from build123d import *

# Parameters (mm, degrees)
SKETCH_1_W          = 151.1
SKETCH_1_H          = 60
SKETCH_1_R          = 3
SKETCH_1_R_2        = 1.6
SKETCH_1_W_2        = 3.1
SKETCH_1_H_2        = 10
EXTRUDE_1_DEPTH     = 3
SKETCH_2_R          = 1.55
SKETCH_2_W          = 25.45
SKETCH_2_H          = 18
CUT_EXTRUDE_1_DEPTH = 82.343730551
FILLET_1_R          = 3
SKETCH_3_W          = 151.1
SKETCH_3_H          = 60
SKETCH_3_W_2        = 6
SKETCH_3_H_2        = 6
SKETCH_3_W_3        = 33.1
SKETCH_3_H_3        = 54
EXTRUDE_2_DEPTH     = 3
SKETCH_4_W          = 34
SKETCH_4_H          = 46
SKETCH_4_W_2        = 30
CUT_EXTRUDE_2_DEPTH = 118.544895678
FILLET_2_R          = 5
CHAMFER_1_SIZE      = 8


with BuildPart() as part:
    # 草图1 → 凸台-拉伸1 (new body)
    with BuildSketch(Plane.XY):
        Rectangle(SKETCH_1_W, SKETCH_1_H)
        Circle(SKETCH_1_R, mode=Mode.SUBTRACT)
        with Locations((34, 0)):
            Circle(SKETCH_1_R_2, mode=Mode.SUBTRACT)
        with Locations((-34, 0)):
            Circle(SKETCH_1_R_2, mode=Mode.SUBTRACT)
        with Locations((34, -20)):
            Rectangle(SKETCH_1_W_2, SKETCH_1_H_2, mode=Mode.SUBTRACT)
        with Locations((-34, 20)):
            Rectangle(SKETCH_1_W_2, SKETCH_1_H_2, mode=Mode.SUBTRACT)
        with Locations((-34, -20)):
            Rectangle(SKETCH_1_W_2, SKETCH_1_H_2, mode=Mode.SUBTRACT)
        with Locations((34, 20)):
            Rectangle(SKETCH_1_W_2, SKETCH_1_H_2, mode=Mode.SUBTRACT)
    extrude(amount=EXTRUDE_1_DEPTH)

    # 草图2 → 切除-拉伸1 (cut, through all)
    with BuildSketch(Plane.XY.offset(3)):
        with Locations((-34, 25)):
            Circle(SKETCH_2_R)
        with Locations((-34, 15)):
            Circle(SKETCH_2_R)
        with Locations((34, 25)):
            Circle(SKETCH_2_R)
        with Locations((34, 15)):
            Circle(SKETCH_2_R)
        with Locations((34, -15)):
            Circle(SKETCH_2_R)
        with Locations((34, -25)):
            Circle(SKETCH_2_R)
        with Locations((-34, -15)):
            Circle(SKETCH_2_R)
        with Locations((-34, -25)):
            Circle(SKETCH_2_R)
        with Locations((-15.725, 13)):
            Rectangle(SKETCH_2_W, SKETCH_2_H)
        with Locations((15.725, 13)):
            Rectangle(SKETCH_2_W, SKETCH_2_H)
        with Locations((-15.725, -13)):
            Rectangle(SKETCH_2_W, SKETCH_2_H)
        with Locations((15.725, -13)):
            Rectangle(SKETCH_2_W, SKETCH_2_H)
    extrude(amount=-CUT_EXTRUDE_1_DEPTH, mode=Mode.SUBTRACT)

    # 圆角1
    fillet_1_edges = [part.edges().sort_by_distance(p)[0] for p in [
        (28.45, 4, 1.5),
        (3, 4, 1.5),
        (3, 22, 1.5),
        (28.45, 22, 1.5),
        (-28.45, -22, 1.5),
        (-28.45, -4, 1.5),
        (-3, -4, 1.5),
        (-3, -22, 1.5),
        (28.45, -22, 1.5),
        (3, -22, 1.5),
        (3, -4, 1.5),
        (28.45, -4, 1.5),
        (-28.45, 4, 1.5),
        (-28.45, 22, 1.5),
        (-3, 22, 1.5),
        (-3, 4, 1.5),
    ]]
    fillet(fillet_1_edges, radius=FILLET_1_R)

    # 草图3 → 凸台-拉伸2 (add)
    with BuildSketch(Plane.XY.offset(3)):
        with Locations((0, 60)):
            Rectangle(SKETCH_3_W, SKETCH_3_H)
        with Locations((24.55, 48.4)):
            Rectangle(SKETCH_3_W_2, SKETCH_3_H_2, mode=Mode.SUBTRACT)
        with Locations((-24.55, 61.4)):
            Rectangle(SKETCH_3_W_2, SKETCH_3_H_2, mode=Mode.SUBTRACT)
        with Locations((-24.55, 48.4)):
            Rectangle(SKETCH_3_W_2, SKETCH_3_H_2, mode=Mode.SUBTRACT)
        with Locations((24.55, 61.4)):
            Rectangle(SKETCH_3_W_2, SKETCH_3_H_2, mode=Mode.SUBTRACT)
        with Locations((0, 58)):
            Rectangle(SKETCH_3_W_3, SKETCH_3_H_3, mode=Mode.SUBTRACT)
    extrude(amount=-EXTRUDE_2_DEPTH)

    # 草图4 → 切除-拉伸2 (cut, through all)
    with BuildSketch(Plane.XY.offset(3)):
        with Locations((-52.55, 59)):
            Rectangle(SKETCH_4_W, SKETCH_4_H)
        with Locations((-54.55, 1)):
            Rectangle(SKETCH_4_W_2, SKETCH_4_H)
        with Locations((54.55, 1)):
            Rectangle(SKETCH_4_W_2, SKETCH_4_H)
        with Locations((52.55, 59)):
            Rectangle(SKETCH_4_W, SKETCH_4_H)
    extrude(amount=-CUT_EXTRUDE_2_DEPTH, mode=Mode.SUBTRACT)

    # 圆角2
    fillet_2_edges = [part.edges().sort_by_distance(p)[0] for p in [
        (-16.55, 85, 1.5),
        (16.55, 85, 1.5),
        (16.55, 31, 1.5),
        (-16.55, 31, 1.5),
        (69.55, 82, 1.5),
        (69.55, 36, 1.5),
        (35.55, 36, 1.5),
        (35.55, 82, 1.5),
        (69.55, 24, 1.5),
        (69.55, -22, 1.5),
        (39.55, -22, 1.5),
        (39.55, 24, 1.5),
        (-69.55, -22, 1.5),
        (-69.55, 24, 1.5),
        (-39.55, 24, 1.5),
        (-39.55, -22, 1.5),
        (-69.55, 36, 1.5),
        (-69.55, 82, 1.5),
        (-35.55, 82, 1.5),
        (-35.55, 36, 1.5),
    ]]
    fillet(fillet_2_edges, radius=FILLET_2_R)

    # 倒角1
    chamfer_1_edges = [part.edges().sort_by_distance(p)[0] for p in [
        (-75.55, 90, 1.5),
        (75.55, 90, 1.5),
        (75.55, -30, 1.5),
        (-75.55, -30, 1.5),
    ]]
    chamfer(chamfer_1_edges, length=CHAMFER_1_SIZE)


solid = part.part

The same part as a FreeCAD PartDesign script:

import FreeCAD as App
import Part
import Sketcher


def edges_at(feature, points):
    """Names of the edges that pass closest to the given points."""
    edges = feature.Shape.Edges
    near = lambda p: min(range(len(edges)), key=lambda i: edges[i].distToShape(Part.Vertex(*p))[0])
    return sorted({f"Edge{near(p) + 1}" for p in points})


def add_polygon(sketch, points):
    """Adds a closed chain of lines whose ends are joined by coincident constraints."""
    first, n = sketch.GeometryCount, len(points)
    for a, b in zip(points, points[1:] + points[:1]):
        sketch.addGeometry(Part.LineSegment(App.Vector(*a, 0), App.Vector(*b, 0)), False)
    for i in range(n):
        sketch.addConstraint(Sketcher.Constraint("Coincident", first + i, 2, first + (i + 1) % n, 1))

doc = App.newDocument("Part")
params = doc.addObject("Spreadsheet::Sheet", "Params")
for row, (alias, value) in enumerate([
    ("sketch1_diameter", "6 mm"),
    ("sketch1_diameter2", "3.2 mm"),
    ("sketch1_height", "60 mm"),
    ("sketch1_height2", "10 mm"),
    ("sketch1_width", "151.1 mm"),
    ("pad1_length", "3 mm"),
    ("sketch2_diameter", "3.1 mm"),
    ("sketch2_height", "18 mm"),
    ("sketch2_width", "25.45 mm"),
    ("fillet_radius", "3 mm"),
    ("sketch3_width", "6 mm"),
    ("sketch3_height", "60 mm"),
    ("sketch3_height2", "54 mm"),
    ("sketch3_width2", "151.1 mm"),
    ("sketch3_width3", "33.1 mm"),
    ("pad2_length", "3 mm"),
    ("sketch4_width", "34 mm"),
    ("sketch4_width2", "30 mm"),
    ("sketch4_height", "46 mm"),
    ("fillet2_radius", "5 mm"),
    ("chamfer_size", "8 mm"),
], start=1):
    params.set(f"A{row}", alias)
    params.set(f"B{row}", "=" + value)
    params.setAlias(f"B{row}", alias)

body = doc.addObject("PartDesign::Body", "Body")

# Sketch on XY plane
sketch1 = doc.addObject("Sketcher::SketchObject", "Sketch")
body.addObject(sketch1)
sketch1.AttachmentSupport = (doc.XY_Plane, [""])
sketch1.MapMode = "FlatFace"
add_polygon(sketch1, [(-75.5, 30), (-75.5, -30), (75.5, -30), (75.5, 30)])  # lines 0-3
add_polygon(sketch1, [(-32.5, -25), (-35.5, -25), (-35.5, -15), (-32.5, -15)])  # lines 4-7
add_polygon(sketch1, [(35.5, -25), (32.5, -25), (32.5, -15), (35.5, -15)])  # lines 8-11
sketch1.addGeometry(Part.Circle(App.Vector(-34, 0, 0), App.Vector(0, 0, 1), 1.6), False)  # 12
add_polygon(sketch1, [(-32.5, 15), (-35.5, 15), (-35.5, 25), (-32.5, 25)])  # lines 13-16
sketch1.addGeometry(Part.Circle(App.Vector(0, 0, 0), App.Vector(0, 0, 1), 3), False)  # 17
sketch1.addGeometry(Part.Circle(App.Vector(34, 0, 0), App.Vector(0, 0, 1), 1.6), False)  # 18
add_polygon(sketch1, [(35.5, 15), (32.5, 15), (32.5, 25), (35.5, 25)])  # lines 19-22
sketch1.addConstraint([
    Sketcher.Constraint("Vertical", 0),
    Sketcher.Constraint("Horizontal", 1),
    Sketcher.Constraint("Vertical", 2),
    Sketcher.Constraint("Horizontal", 3),
    Sketcher.Constraint("Horizontal", 4),
    Sketcher.Constraint("Vertical", 5),
    Sketcher.Constraint("Horizontal", 6),
    Sketcher.Constraint("Vertical", 7),
    Sketcher.Constraint("Horizontal", 8),
    Sketcher.Constraint("Vertical", 9),
    Sketcher.Constraint("Horizontal", 10),
    Sketcher.Constraint("Vertical", 11),
    Sketcher.Constraint("Horizontal", 13),
    Sketcher.Constraint("Vertical", 14),
    Sketcher.Constraint("Horizontal", 15),
    Sketcher.Constraint("Vertical", 16),
    Sketcher.Constraint("Horizontal", 19),
    Sketcher.Constraint("Vertical", 20),
    Sketcher.Constraint("Horizontal", 21),
    Sketcher.Constraint("Vertical", 22),
    Sketcher.Constraint("Coincident", 17, 3, -1, 1),
    Sketcher.Constraint("Equal", 12, 18),
    Sketcher.Constraint("Symmetric", 12, 3, 18, 3, -1, 1),
    Sketcher.Constraint("Symmetric", 0, 2, 2, 2, -1, 1),
    Sketcher.Constraint("Symmetric", 10, 2, 13, 2, -1, 1),
    Sketcher.Constraint("Symmetric", 8, 2, 15, 2, -1, 1),
    Sketcher.Constraint("Symmetric", 6, 2, 19, 2, -1, 1),
    Sketcher.Constraint("Symmetric", 4, 2, 21, 2, -1, 1),
    Sketcher.Constraint("Symmetric", 7, 2, 8, 2, -2),
    Sketcher.Constraint("Symmetric", 5, 2, 10, 2, -2),
    Sketcher.Constraint("PointOnObject", 12, 3, -1),
    Sketcher.Constraint("Diameter", 17, 6.0),
    Sketcher.Constraint("Diameter", 12, 3.2),
    Sketcher.Constraint("DistanceY", 0, 2, 0, 1, 60.0),
    Sketcher.Constraint("DistanceY", 5, 1, 5, 2, 10.0),
    Sketcher.Constraint("DistanceX", 1, 1, 1, 2, 151.1),
    Sketcher.Constraint("DistanceX", 4, 2, 4, 1, 3.1),
    Sketcher.Constraint("DistanceX", 12, 3, -1, 1, 34.0),
    Sketcher.Constraint("DistanceY", 4, 2, -1, 1, 25.0),
    Sketcher.Constraint("DistanceX", 0, 2, 4, 2, 40.0),
])
sketch1.setExpression("Constraints[51]", "Params.sketch1_diameter")
sketch1.setExpression("Constraints[52]", "Params.sketch1_diameter2")
sketch1.setExpression("Constraints[53]", "Params.sketch1_height")
sketch1.setExpression("Constraints[54]", "Params.sketch1_height2")
sketch1.setExpression("Constraints[55]", "Params.sketch1_width")
pad1 = doc.addObject("PartDesign::Pad", "Pad")
body.addObject(pad1)
pad1.Profile = sketch1
pad1.setExpression("Length", "Params.pad1_length")

# Sketch on XY plane
sketch2 = doc.addObject("Sketcher::SketchObject", "Sketch001")
body.addObject(sketch2)
sketch2.AttachmentSupport = (doc.XY_Plane, [""])
sketch2.MapMode = "FlatFace"
sketch2.AttachmentOffset = App.Placement(App.Vector(0, 0, 3), App.Rotation())
sketch2.addGeometry(Part.Circle(App.Vector(-34, 25, 0), App.Vector(0, 0, 1), 1.6), False)  # 0
sketch2.addGeometry(Part.Circle(App.Vector(-34, 15, 0), App.Vector(0, 0, 1), 1.6), False)  # 1
sketch2.addGeometry(Part.Circle(App.Vector(34, 25, 0), App.Vector(0, 0, 1), 1.6), False)  # 2
sketch2.addGeometry(Part.Circle(App.Vector(34, 15, 0), App.Vector(0, 0, 1), 1.6), False)  # 3
sketch2.addGeometry(Part.Circle(App.Vector(34, -15, 0), App.Vector(0, 0, 1), 1.6), False)  # 4
sketch2.addGeometry(Part.Circle(App.Vector(34, -25, 0), App.Vector(0, 0, 1), 1.6), False)  # 5
sketch2.addGeometry(Part.Circle(App.Vector(-34, -15, 0), App.Vector(0, 0, 1), 1.6), False)  # 6
sketch2.addGeometry(Part.Circle(App.Vector(-34, -25, 0), App.Vector(0, 0, 1), 1.6), False)  # 7
add_polygon(sketch2, [(-28.4, 22), (-28.4, 4), (-3, 4), (-3, 22)])  # lines 8-11
add_polygon(sketch2, [(3, 22), (3, 4), (28.4, 4), (28.4, 22)])  # lines 12-15
add_polygon(sketch2, [(-28.4, -4), (-28.4, -22), (-3, -22), (-3, -4)])  # lines 16-19
add_polygon(sketch2, [(3, -4), (3, -22), (28.4, -22), (28.4, -4)])  # lines 20-23
sketch2.addConstraint([
    Sketcher.Constraint("Vertical", 8),
    Sketcher.Constraint("Horizontal", 9),
    Sketcher.Constraint("Vertical", 10),
    Sketcher.Constraint("Horizontal", 11),
    Sketcher.Constraint("Vertical", 12),
    Sketcher.Constraint("Horizontal", 13),
    Sketcher.Constraint("Vertical", 14),
    Sketcher.Constraint("Horizontal", 15),
    Sketcher.Constraint("Vertical", 16),
    Sketcher.Constraint("Horizontal", 17),
    Sketcher.Constraint("Vertical", 18),
    Sketcher.Constraint("Horizontal", 19),
    Sketcher.Constraint("Vertical", 20),
    Sketcher.Constraint("Horizontal", 21),
    Sketcher.Constraint("Vertical", 22),
    Sketcher.Constraint("Horizontal", 23),
    Sketcher.Constraint("Equal", 0, 1),
    Sketcher.Constraint("Equal", 1, 2),
    Sketcher.Constraint("Equal", 2, 3),
    Sketcher.Constraint("Equal", 3, 4),
    Sketcher.Constraint("Equal", 4, 5),
    Sketcher.Constraint("Equal", 5, 6),
    Sketcher.Constraint("Equal", 6, 7),
    Sketcher.Constraint("Symmetric", 1, 3, 4, 3, -1, 1),
    Sketcher.Constraint("Symmetric", 0, 3, 5, 3, -1, 1),
    Sketcher.Constraint("Symmetric", 3, 3, 6, 3, -1, 1),
    Sketcher.Constraint("Symmetric", 2, 3, 7, 3, -1, 1),
    Sketcher.Constraint("Symmetric", 14, 2, 16, 2, -1, 1),
    Sketcher.Constraint("Symmetric", 12, 2, 18, 2, -1, 1),
    Sketcher.Constraint("Symmetric", 10, 2, 20, 2, -1, 1),
    Sketcher.Constraint("Symmetric", 8, 2, 22, 2, -1, 1),
    Sketcher.Constraint("Symmetric", 0, 3, 2, 3, -2),
    Sketcher.Constraint("Symmetric", 1, 3, 3, 3, -2),
    Sketcher.Constraint("Symmetric", 9, 2, 12, 2, -2),
    Sketcher.Constraint("Symmetric", 11, 2, 14, 2, -2),
    Sketcher.Constraint("Vertical", 0, 3, 1, 3),
    Sketcher.Constraint("Diameter", 0, 3.1),
    Sketcher.Constraint("DistanceY", 8, 2, 8, 1, 18.0),
    Sketcher.Constraint("DistanceX", 0, 3, -1, 1, 34.0),
    Sketcher.Constraint("DistanceY", -1, 1, 0, 3, 25.0),
    Sketcher.Constraint("DistanceY", -1, 1, 1, 3, 15.0),
    Sketcher.Constraint("DistanceY", -1, 1, 8, 2, 4.0),
    Sketcher.Constraint("DistanceX", 9, 2, -1, 1, 3.0),
    Sketcher.Constraint("DistanceX", 9, 1, 9, 2, 25.45),
])
sketch2.setExpression("Constraints[52]", "Params.sketch2_diameter")
sketch2.setExpression("Constraints[53]", "Params.sketch2_height")
sketch2.setExpression("Constraints[59]", "Params.sketch2_width")
pocket1 = doc.addObject("PartDesign::Pocket", "Pocket")
body.addObject(pocket1)
pocket1.Profile = sketch2
pocket1.Type = "ThroughAll"
doc.recompute()

fillet = doc.addObject("PartDesign::Fillet", "Fillet")
body.addObject(fillet)
fillet.Base = (pocket1, edges_at(pocket1, [
    (28.45, 4, 1.5),
    (3, 4, 1.5),
    (3, 22, 1.5),
    (28.45, 22, 1.5),
    (-28.45, -22, 1.5),
    (-28.45, -4, 1.5),
    (-3, -4, 1.5),
    (-3, -22, 1.5),
    (28.45, -22, 1.5),
    (3, -22, 1.5),
    (3, -4, 1.5),
    (28.45, -4, 1.5),
    (-28.45, 4, 1.5),
    (-28.45, 22, 1.5),
    (-3, 22, 1.5),
    (-3, 4, 1.5),
]))
fillet.setExpression("Radius", "Params.fillet_radius")

# Sketch on XY plane
sketch3 = doc.addObject("Sketcher::SketchObject", "Sketch002")
body.addObject(sketch3)
sketch3.AttachmentSupport = (doc.XY_Plane, [""])
sketch3.MapMode = "FlatFace"
sketch3.AttachmentOffset = App.Placement(App.Vector(0, 0, 3), App.Rotation())
add_polygon(sketch3, [(-76, 90), (-76, 30), (76, 30), (76, 90)])  # lines 0-3
add_polygon(sketch3, [(-22, 45), (-28, 45), (-28, 51), (-22, 51)])  # lines 4-7
add_polygon(sketch3, [(28, 45), (22, 45), (22, 51), (28, 51)])  # lines 8-11
add_polygon(sketch3, [(-22, 58), (-28, 58), (-28, 64), (-22, 64)])  # lines 12-15
add_polygon(sketch3, [(17, 31), (-17, 31), (-17, 85), (17, 85)])  # lines 16-19
add_polygon(sketch3, [(28, 58), (22, 58), (22, 64), (28, 64)])  # lines 20-23
sketch3.addConstraint([
    Sketcher.Constraint("Vertical", 0),
    Sketcher.Constraint("Horizontal", 1),
    Sketcher.Constraint("Vertical", 2),
    Sketcher.Constraint("Horizontal", 3),
    Sketcher.Constraint("Horizontal", 4),
    Sketcher.Constraint("Vertical", 5),
    Sketcher.Constraint("Horizontal", 6),
    Sketcher.Constraint("Vertical", 7),
    Sketcher.Constraint("Horizontal", 8),
    Sketcher.Constraint("Vertical", 9),
    Sketcher.Constraint("Horizontal", 10),
    Sketcher.Constraint("Vertical", 11),
    Sketcher.Constraint("Horizontal", 12),
    Sketcher.Constraint("Vertical", 13),
    Sketcher.Constraint("Horizontal", 14),
    Sketcher.Constraint("Vertical", 15),
    Sketcher.Constraint("Horizontal", 16),
    Sketcher.Constraint("Vertical", 17),
    Sketcher.Constraint("Horizontal", 18),
    Sketcher.Constraint("Vertical", 19),
    Sketcher.Constraint("Horizontal", 20),
    Sketcher.Constraint("Vertical", 21),
    Sketcher.Constraint("Horizontal", 22),
    Sketcher.Constraint("Vertical", 23),
    Sketcher.Constraint("Symmetric", 7, 2, 8, 2, -2),
    Sketcher.Constraint("Symmetric", 5, 2, 10, 2, -2),
    Sketcher.Constraint("Symmetric", 15, 2, 20, 2, -2),
    Sketcher.Constraint("Symmetric", 13, 2, 22, 2, -2),
    Sketcher.Constraint("Vertical", 5, 2, 12, 2),
    Sketcher.Constraint("Vertical", 7, 2, 14, 2),
    Sketcher.Constraint("Equal", 22, 5),
    Sketcher.Constraint("Equal", 11, 13),
    Sketcher.Constraint("DistanceX", 4, 2, 4, 1, 6.0),
    Sketcher.Constraint("DistanceY", 0, 2, 0, 1, 60.0),
    Sketcher.Constraint("DistanceY", 17, 1, 17, 2, 54.0),
    Sketcher.Constraint("DistanceX", 1, 1, 1, 2, 151.1),
    Sketcher.Constraint("DistanceX", 16, 2, 16, 1, 33.1),
    Sketcher.Constraint("DistanceY", -1, 1, 0, 2, 30.0),
    Sketcher.Constraint("DistanceY", -1, 1, 16, 2, 31.0),
    Sketcher.Constraint("DistanceX", 0, 2, 4, 2, 48.0),
    Sketcher.Constraint("DistanceX", 8, 2, 1, 2, 54.0),
    Sketcher.Constraint("DistanceY", 5, 2, 12, 2, 7.0),
    Sketcher.Constraint("DistanceX", 7, 2, 16, 2, 5.0),
    Sketcher.Constraint("DistanceY", -1, 1, 4, 2, 45.4),
])
sketch3.setExpression("Constraints[56]", "Params.sketch3_width")
sketch3.setExpression("Constraints[57]", "Params.sketch3_height")
sketch3.setExpression("Constraints[58]", "Params.sketch3_height2")
sketch3.setExpression("Constraints[59]", "Params.sketch3_width2")
sketch3.setExpression("Constraints[60]", "Params.sketch3_width3")
pad2 = doc.addObject("PartDesign::Pad", "Pad001")
body.addObject(pad2)
pad2.Profile = sketch3
pad2.setExpression("Length", "Params.pad2_length")
pad2.Reversed = True

# Sketch on XY plane
sketch4 = doc.addObject("Sketcher::SketchObject", "Sketch003")
body.addObject(sketch4)
sketch4.AttachmentSupport = (doc.XY_Plane, [""])
sketch4.MapMode = "FlatFace"
sketch4.AttachmentOffset = App.Placement(App.Vector(0, 0, 3), App.Rotation())
add_polygon(sketch4, [(-70, 82), (-70, 36), (-36, 36), (-36, 82)])  # lines 0-3
add_polygon(sketch4, [(-70, 24), (-70, -22), (-40, -22), (-40, 24)])  # lines 4-7
add_polygon(sketch4, [(40, 24), (40, -22), (70, -22), (70, 24)])  # lines 8-11
add_polygon(sketch4, [(36, 82), (36, 36), (70, 36), (70, 82)])  # lines 12-15
sketch4.addConstraint([
    Sketcher.Constraint("Vertical", 0),
    Sketcher.Constraint("Horizontal", 1),
    Sketcher.Constraint("Vertical", 2),
    Sketcher.Constraint("Horizontal", 3),
    Sketcher.Constraint("Vertical", 4),
    Sketcher.Constraint("Horizontal", 5),
    Sketcher.Constraint("Vertical", 6),
    Sketcher.Constraint("Horizontal", 7),
    Sketcher.Constraint("Vertical", 8),
    Sketcher.Constraint("Horizontal", 9),
    Sketcher.Constraint("Vertical", 10),
    Sketcher.Constraint("Horizontal", 11),
    Sketcher.Constraint("Vertical", 12),
    Sketcher.Constraint("Horizontal", 13),
    Sketcher.Constraint("Vertical", 14),
    Sketcher.Constraint("Horizontal", 15),
    Sketcher.Constraint("Symmetric", 5, 2, 8, 2, -2),
    Sketcher.Constraint("Symmetric", 7, 2, 10, 2, -2),
    Sketcher.Constraint("Symmetric", 1, 2, 12, 2, -2),
    Sketcher.Constraint("Symmetric", 3, 2, 14, 2, -2),
    Sketcher.Constraint("Vertical", 3, 2, 4, 2),
    Sketcher.Constraint("Equal", 2, 4),
    Sketcher.Constraint("DistanceX", 1, 1, 1, 2, 34.0),
    Sketcher.Constraint("DistanceX", 5, 1, 5, 2, 30.0),
    Sketcher.Constraint("DistanceY", 0, 2, 0, 1, 46.0),
    Sketcher.Constraint("DistanceY", -1, 1, 0, 2, 36.0),
    Sketcher.Constraint("DistanceY", 4, 2, -1, 1, 22.0),
    Sketcher.Constraint("DistanceX", 5, 2, 8, 2, 79.1),
])
sketch4.setExpression("Constraints[38]", "Params.sketch4_width")
sketch4.setExpression("Constraints[39]", "Params.sketch4_width2")
sketch4.setExpression("Constraints[40]", "Params.sketch4_height")
pocket2 = doc.addObject("PartDesign::Pocket", "Pocket001")
body.addObject(pocket2)
pocket2.Profile = sketch4
pocket2.Type = "ThroughAll"
doc.recompute()

fillet2 = doc.addObject("PartDesign::Fillet", "Fillet001")
body.addObject(fillet2)
fillet2.Base = (pocket2, edges_at(pocket2, [
    (-16.55, 85, 1.5),
    (16.55, 85, 1.5),
    (16.55, 31, 1.5),
    (-16.55, 31, 1.5),
    (69.55, 82, 1.5),
    (69.55, 36, 1.5),
    (35.55, 36, 1.5),
    (35.55, 82, 1.5),
    (69.55, 24, 1.5),
    (69.55, -22, 1.5),
    (39.55, -22, 1.5),
    (39.55, 24, 1.5),
    (-69.55, -22, 1.5),
    (-69.55, 24, 1.5),
    (-39.55, 24, 1.5),
    (-39.55, -22, 1.5),
    (-69.55, 36, 1.5),
    (-69.55, 82, 1.5),
    (-35.55, 82, 1.5),
    (-35.55, 36, 1.5),
]))
fillet2.setExpression("Radius", "Params.fillet2_radius")
doc.recompute()

chamfer = doc.addObject("PartDesign::Chamfer", "Chamfer")
body.addObject(chamfer)
chamfer.Base = (fillet2, edges_at(fillet2, [
    (-75.55, 90, 1.5),
    (75.55, 90, 1.5),
    (75.55, -30, 1.5),
    (-75.55, -30, 1.5),
]))
chamfer.setExpression("Size", "Params.chamfer_size")

doc.recompute()
